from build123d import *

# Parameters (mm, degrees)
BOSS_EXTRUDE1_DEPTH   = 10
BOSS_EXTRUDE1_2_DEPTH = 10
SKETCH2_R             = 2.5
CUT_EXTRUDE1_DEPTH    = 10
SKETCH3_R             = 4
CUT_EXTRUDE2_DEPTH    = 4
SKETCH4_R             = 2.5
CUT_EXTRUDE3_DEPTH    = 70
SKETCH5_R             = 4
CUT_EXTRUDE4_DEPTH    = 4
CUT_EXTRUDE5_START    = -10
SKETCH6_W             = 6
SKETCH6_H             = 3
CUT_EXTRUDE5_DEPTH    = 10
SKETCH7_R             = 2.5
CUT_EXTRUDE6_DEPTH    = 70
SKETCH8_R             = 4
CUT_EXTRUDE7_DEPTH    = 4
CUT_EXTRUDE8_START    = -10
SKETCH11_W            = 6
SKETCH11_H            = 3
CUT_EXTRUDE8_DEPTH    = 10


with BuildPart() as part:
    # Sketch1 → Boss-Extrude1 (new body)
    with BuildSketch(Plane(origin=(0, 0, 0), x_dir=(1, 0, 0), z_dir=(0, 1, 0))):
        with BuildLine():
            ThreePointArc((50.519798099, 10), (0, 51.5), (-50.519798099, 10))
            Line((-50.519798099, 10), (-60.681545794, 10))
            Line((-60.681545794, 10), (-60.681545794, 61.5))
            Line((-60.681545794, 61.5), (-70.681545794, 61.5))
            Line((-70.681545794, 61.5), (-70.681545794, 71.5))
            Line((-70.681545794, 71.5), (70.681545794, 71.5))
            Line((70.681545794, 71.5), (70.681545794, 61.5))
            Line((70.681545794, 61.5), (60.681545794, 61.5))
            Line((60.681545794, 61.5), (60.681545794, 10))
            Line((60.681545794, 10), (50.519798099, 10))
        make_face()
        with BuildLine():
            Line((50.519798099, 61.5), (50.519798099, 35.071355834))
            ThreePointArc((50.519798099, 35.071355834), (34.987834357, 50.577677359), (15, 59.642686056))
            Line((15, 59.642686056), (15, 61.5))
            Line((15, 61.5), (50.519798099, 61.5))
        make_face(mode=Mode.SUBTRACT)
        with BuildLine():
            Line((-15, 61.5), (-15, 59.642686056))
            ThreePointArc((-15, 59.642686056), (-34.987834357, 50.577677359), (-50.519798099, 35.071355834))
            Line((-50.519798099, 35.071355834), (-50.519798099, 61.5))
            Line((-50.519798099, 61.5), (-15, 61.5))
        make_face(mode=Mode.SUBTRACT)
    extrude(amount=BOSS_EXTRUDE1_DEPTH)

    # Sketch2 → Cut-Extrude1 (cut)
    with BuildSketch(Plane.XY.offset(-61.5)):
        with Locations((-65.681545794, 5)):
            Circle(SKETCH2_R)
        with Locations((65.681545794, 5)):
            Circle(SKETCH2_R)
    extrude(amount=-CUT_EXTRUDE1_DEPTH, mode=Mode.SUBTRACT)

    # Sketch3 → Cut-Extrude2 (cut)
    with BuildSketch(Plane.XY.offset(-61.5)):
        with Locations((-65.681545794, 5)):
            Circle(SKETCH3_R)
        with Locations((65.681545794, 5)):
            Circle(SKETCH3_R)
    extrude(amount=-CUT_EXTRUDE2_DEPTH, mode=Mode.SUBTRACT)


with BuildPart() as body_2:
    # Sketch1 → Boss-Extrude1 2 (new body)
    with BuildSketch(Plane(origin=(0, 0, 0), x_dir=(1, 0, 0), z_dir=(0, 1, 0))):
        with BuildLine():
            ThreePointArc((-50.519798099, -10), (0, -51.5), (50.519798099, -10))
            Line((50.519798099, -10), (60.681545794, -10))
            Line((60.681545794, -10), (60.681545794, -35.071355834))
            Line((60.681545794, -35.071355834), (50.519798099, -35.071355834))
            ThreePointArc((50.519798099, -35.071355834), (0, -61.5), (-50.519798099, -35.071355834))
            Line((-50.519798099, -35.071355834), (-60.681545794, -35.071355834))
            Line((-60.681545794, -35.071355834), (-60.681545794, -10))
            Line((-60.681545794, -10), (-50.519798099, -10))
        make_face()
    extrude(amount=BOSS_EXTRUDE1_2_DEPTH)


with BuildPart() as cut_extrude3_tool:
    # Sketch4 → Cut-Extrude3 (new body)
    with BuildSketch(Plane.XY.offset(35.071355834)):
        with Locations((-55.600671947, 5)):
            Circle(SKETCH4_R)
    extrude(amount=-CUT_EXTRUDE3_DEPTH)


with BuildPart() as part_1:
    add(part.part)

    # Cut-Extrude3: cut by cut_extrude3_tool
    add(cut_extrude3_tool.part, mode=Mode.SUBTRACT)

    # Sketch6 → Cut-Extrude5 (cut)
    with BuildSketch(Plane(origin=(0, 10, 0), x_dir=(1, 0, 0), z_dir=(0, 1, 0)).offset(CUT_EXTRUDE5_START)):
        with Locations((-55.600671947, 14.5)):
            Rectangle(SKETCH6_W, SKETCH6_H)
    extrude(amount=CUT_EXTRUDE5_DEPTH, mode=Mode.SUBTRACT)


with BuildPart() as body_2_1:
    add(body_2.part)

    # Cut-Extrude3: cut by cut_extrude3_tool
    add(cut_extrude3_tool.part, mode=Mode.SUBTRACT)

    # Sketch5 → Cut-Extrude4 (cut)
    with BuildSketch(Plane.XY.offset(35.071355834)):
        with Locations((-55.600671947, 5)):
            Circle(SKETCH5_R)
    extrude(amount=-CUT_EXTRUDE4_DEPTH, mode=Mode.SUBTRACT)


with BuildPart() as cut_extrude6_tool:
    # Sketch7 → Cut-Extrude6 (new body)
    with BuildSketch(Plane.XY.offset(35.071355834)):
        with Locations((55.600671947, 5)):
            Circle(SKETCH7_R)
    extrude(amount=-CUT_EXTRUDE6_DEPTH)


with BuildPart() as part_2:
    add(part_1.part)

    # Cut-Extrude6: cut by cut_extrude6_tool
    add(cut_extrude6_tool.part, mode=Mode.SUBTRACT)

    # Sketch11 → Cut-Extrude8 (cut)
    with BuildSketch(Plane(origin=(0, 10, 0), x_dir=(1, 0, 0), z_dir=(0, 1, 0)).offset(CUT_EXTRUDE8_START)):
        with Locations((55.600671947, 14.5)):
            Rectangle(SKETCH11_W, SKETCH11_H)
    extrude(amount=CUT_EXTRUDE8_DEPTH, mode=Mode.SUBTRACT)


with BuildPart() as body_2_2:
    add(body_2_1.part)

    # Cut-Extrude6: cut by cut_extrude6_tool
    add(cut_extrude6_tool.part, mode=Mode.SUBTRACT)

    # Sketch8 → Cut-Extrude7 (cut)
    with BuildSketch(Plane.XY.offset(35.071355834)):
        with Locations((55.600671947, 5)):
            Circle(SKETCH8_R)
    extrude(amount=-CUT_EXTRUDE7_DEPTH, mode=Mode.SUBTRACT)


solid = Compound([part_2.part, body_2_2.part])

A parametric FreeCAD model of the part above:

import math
import FreeCAD as App
import Part
import Sketcher

V = App.Vector

doc = App.newDocument("Part")
body = doc.addObject("PartDesign::Body", "Body")

# Sketch on XZ plane
sketch1 = body.newObject("Sketcher::SketchObject", "Sketch")
sketch1.AttachmentSupport = (doc.getObject("XZ_Plane"), [""])
sketch1.MapMode = "FlatFace"
sketch1.addGeometry(Part.ArcOfCircle(Part.Circle(V(0, 0, 0), V(0, 0, 1), 51.5), math.radians(-169), math.radians(-11)), False)
sketch1.addGeometry(Part.LineSegment(V(50.5, -10, 0), V(60.7, -10, 0)), False)
sketch1.addGeometry(Part.LineSegment(V(60.7, -10, 0), V(60.7, -61.5, 0)), False)
sketch1.addGeometry(Part.LineSegment(V(60.7, -61.5, 0), V(70.7, -61.5, 0)), False)
sketch1.addGeometry(Part.LineSegment(V(70.7, -61.5, 0), V(70.7, -71.5, 0)), False)
sketch1.addGeometry(Part.LineSegment(V(70.7, -71.5, 0), V(-70.7, -71.5, 0)), False)
sketch1.addGeometry(Part.LineSegment(V(-70.7, -71.5, 0), V(-70.7, -61.5, 0)), False)
sketch1.addGeometry(Part.LineSegment(V(-70.7, -61.5, 0), V(-60.7, -61.5, 0)), False)
sketch1.addGeometry(Part.LineSegment(V(-60.7, -61.5, 0), V(-60.7, -10, 0)), False)
sketch1.addGeometry(Part.LineSegment(V(-60.7, -10, 0), V(-50.5, -10, 0)), False)
sketch1.addGeometry(Part.LineSegment(V(-15, -61.5, 0), V(-15, -59.6, 0)), False)
sketch1.addGeometry(Part.ArcOfCircle(Part.Circle(V(0, 0, 0), V(0, 0, 1), 61.5), math.radians(-145), math.radians(-104)), False)
sketch1.addGeometry(Part.LineSegment(V(-50.5, -35.1, 0), V(-50.5, -61.5, 0)), False)
sketch1.addGeometry(Part.LineSegment(V(-50.5, -61.5, 0), V(-15, -61.5, 0)), False)
sketch1.addGeometry(Part.LineSegment(V(50.5, -61.5, 0), V(50.5, -35.1, 0)), False)
sketch1.addGeometry(Part.ArcOfCircle(Part.Circle(V(0, 0, 0), V(0, 0, 1), 61.5), math.radians(-76), math.radians(-35)), False)
sketch1.addGeometry(Part.LineSegment(V(15, -59.6, 0), V(15, -61.5, 0)), False)
sketch1.addGeometry(Part.LineSegment(V(15, -61.5, 0), V(50.5, -61.5, 0)), False)
sketch1.addConstraint(Sketcher.Constraint("Coincident", 0, 2, 1, 1))
sketch1.addConstraint(Sketcher.Constraint("Coincident", 1, 2, 2, 1))
sketch1.addConstraint(Sketcher.Constraint("Coincident", 2, 2, 3, 1))
sketch1.addConstraint(Sketcher.Constraint("Coincident", 3, 2, 4, 1))
sketch1.addConstraint(Sketcher.Constraint("Coincident", 4, 2, 5, 1))
sketch1.addConstraint(Sketcher.Constraint("Coincident", 5, 2, 6, 1))
sketch1.addConstraint(Sketcher.Constraint("Coincident", 6, 2, 7, 1))
sketch1.addConstraint(Sketcher.Constraint("Coincident", 7, 2, 8, 1))
sketch1.addConstraint(Sketcher.Constraint("Coincident", 8, 2, 9, 1))
sketch1.addConstraint(Sketcher.Constraint("Coincident", 9, 2, 0, 1))
sketch1.addConstraint(Sketcher.Constraint("Coincident", 10, 2, 11, 2))
sketch1.addConstraint(Sketcher.Constraint("Coincident", 11, 1, 12, 1))
sketch1.addConstraint(Sketcher.Constraint("Coincident", 12, 2, 13, 1))
sketch1.addConstraint(Sketcher.Constraint("Coincident", 13, 2, 10, 1))
sketch1.addConstraint(Sketcher.Constraint("Coincident", 14, 2, 15, 2))
sketch1.addConstraint(Sketcher.Constraint("Coincident", 15, 1, 16, 1))
sketch1.addConstraint(Sketcher.Constraint("Coincident", 16, 2, 17, 1))
sketch1.addConstraint(Sketcher.Constraint("Coincident", 17, 2, 14, 1))
sketch1.addConstraint(Sketcher.Constraint("Horizontal", 1))
sketch1.addConstraint(Sketcher.Constraint("Vertical", 2))
sketch1.addConstraint(Sketcher.Constraint("Horizontal", 3))
sketch1.addConstraint(Sketcher.Constraint("Vertical", 4))
sketch1.addConstraint(Sketcher.Constraint("Horizontal", 5))
sketch1.addConstraint(Sketcher.Constraint("Vertical", 6))
sketch1.addConstraint(Sketcher.Constraint("Horizontal", 7))
sketch1.addConstraint(Sketcher.Constraint("Vertical", 8))
sketch1.addConstraint(Sketcher.Constraint("Horizontal", 9))
sketch1.addConstraint(Sketcher.Constraint("Vertical", 10))
sketch1.addConstraint(Sketcher.Constraint("Vertical", 12))
sketch1.addConstraint(Sketcher.Constraint("Horizontal", 13))
sketch1.addConstraint(Sketcher.Constraint("Vertical", 14))
sketch1.addConstraint(Sketcher.Constraint("Vertical", 16))
sketch1.addConstraint(Sketcher.Constraint("Horizontal", 17))
sketch1.addConstraint(Sketcher.Constraint("Coincident", 0, 3, -1, 1))
sketch1.addConstraint(Sketcher.Constraint("Coincident", 11, 3, -1, 1))
sketch1.addConstraint(Sketcher.Constraint("Coincident", 15, 3, -1, 1))
sketch1.addConstraint(Sketcher.Constraint("Equal", 11, 15))
sketch1.addConstraint(Sketcher.Constraint("Symmetric", 3, 2, 6, 2, -2))
sketch1.addConstraint(Sketcher.Constraint("Symmetric", 1, 2, 8, 2, -2))
sketch1.addConstraint(Sketcher.Constraint("Symmetric", 13, 2, 16, 2, -2))
sketch1.addConstraint(Sketcher.Constraint("Horizontal", 7, 2, 12, 2))
sketch1.addConstraint(Sketcher.Constraint("Horizontal", 11, 1, 14, 2))
sketch1.addConstraint(Sketcher.Constraint("Vertical", 9, 2, 11, 1))
sketch1.addConstraint(Sketcher.Constraint("Equal", 7, 4))
sketch1.addConstraint(Sketcher.Constraint("Radius", 0, 51.5))
sketch1.addConstraint(Sketcher.Constraint("Radius", 11, 61.5))
sketch1.addConstraint(Sketcher.Constraint("DistanceX", 3, 1, 3, 2, 10.0))
sketch1.addConstraint(Sketcher.Constraint("DistanceY", 2, 2, 2, 1, 51.5))
sketch1.addConstraint(Sketcher.Constraint("DistanceY", 0, 2, -1, 1, 10.0))
sketch1.addConstraint(Sketcher.Constraint("DistanceX", 10, 2, -1, 1, 15.0))
sketch1.addConstraint(Sketcher.Constraint("DistanceX", 5, 2, 5, 1, 141.363092))
pad1 = body.newObject("PartDesign::Pad", "Pad")
pad1.Profile = sketch1
pad1.Length = 10
pad1.Reversed = True

# Sketch on XY plane
sketch2 = body.newObject("Sketcher::SketchObject", "Sketch001")
sketch2.AttachmentSupport = (doc.getObject("XY_Plane"), [""])
sketch2.MapMode = "FlatFace"
sketch2.AttachmentOffset = App.Placement(V(0, 0, -61.5), App.Rotation())
sketch2.addGeometry(Part.Circle(V(-65.7, 5, 0), V(0, 0, 1), 2.5), False)
sketch2.addGeometry(Part.Circle(V(65.7, 5, 0), V(0, 0, 1), 2.5), False)
sketch2.addConstraint(Sketcher.Constraint("Equal", 0, 1))
sketch2.addConstraint(Sketcher.Constraint("Symmetric", 0, 3, 1, 3, -2))
sketch2.addConstraint(Sketcher.Constraint("Diameter", 0, 5.0))
sketch2.addConstraint(Sketcher.Constraint("DistanceY", -1, 1, 0, 3, 5.0))
sketch2.addConstraint(Sketcher.Constraint("DistanceX", 0, 3, 1, 3, 131.363092))
pocket1 = body.newObject("PartDesign::Pocket", "Pocket")
pocket1.Profile = sketch2
pocket1.Length = 10

# Sketch on XY plane
sketch3 = body.newObject("Sketcher::SketchObject", "Sketch002")
sketch3.AttachmentSupport = (doc.getObject("XY_Plane"), [""])
sketch3.MapMode = "FlatFace"
sketch3.AttachmentOffset = App.Placement(V(0, 0, -61.5), App.Rotation())
sketch3.addGeometry(Part.Circle(V(-65.7, 5, 0), V(0, 0, 1), 4), False)
sketch3.addGeometry(Part.Circle(V(65.7, 5, 0), V(0, 0, 1), 4), False)
sketch3.addConstraint(Sketcher.Constraint("Equal", 0, 1))
sketch3.addConstraint(Sketcher.Constraint("Symmetric", 0, 3, 1, 3, -2))
sketch3.addConstraint(Sketcher.Constraint("Diameter", 0, 8.0))
sketch3.addConstraint(Sketcher.Constraint("DistanceY", -1, 1, 0, 3, 5.0))
sketch3.addConstraint(Sketcher.Constraint("DistanceX", 0, 3, 1, 3, 131.363092))
pocket2 = body.newObject("PartDesign::Pocket", "Pocket001")
pocket2.Profile = sketch3
pocket2.Length = 4
body2 = doc.addObject("PartDesign::Body", "Body001")

# Sketch on XZ plane
sketch4 = body2.newObject("Sketcher::SketchObject", "Sketch003")
sketch4.AttachmentSupport = (doc.getObject("XZ_Plane001"), [""])
sketch4.MapMode = "FlatFace"
sketch4.addGeometry(Part.ArcOfCircle(Part.Circle(V(0, 0, 0), V(0, 0, 1), 52), math.radians(11), math.radians(169)), False)
sketch4.addGeometry(Part.LineSegment(V(-51, 10, 0), V(-61, 10, 0)), False)
sketch4.addGeometry(Part.LineSegment(V(-61, 10, 0), V(-61, 35, 0)), False)
sketch4.addGeometry(Part.LineSegment(V(-61, 35, 0), V(-51, 35, 0)), False)
sketch4.addGeometry(Part.ArcOfCircle(Part.Circle(V(0, 0, 0), V(0, 0, 1), 62), math.radians(35), math.radians(145)), False)
sketch4.addGeometry(Part.LineSegment(V(51, 35, 0), V(61, 35, 0)), False)
sketch4.addGeometry(Part.LineSegment(V(61, 35, 0), V(61, 10, 0)), False)
sketch4.addGeometry(Part.LineSegment(V(61, 10, 0), V(51, 10, 0)), False)
sketch4.addConstraint(Sketcher.Constraint("Coincident", 0, 2, 1, 1))
sketch4.addConstraint(Sketcher.Constraint("Coincident", 1, 2, 2, 1))
sketch4.addConstraint(Sketcher.Constraint("Coincident", 2, 2, 3, 1))
sketch4.addConstraint(Sketcher.Constraint("Coincident", 3, 2, 4, 2))
sketch4.addConstraint(Sketcher.Constraint("Coincident", 4, 1, 5, 1))
sketch4.addConstraint(Sketcher.Constraint("Coincident", 5, 2, 6, 1))
sketch4.addConstraint(Sketcher.Constraint("Coincident", 6, 2, 7, 1))
sketch4.addConstraint(Sketcher.Constraint("Coincident", 7, 2, 0, 1))
sketch4.addConstraint(Sketcher.Constraint("Horizontal", 1))
sketch4.addConstraint(Sketcher.Constraint("Vertical", 2))
sketch4.addConstraint(Sketcher.Constraint("Horizontal", 3))
sketch4.addConstraint(Sketcher.Constraint("Horizontal", 5))
sketch4.addConstraint(Sketcher.Constraint("Vertical", 6))
sketch4.addConstraint(Sketcher.Constraint("Horizontal", 7))
sketch4.addConstraint(Sketcher.Constraint("Coincident", 0, 3, -1, 1))
sketch4.addConstraint(Sketcher.Constraint("Coincident", 4, 3, -1, 1))
sketch4.addConstraint(Sketcher.Constraint("Symmetric", 2, 2, 5, 2, -2))
sketch4.addConstraint(Sketcher.Constraint("Horizontal", 1, 2, 6, 2))
sketch4.addConstraint(Sketcher.Constraint("Vertical", 0, 2, 3, 2))
sketch4.addConstraint(Sketcher.Constraint("Radius", 0, 51.5))
sketch4.addConstraint(Sketcher.Constraint("Radius", 4, 61.5))
sketch4.addConstraint(Sketcher.Constraint("DistanceY", -1, 1, 0, 2, 10.0))
sketch4.addConstraint(Sketcher.Constraint("DistanceX", 1, 2, 1, 1, 10.161748))
pad2 = body2.newObject("PartDesign::Pad", "Pad001")
pad2.Profile = sketch4
pad2.Length = 10
pad2.Reversed = True
body3 = doc.addObject("PartDesign::Body", "Body002")

# Sketch on XY plane
sketch5 = body3.newObject("Sketcher::SketchObject", "Sketch004")
sketch5.AttachmentSupport = (doc.getObject("XY_Plane002"), [""])
sketch5.MapMode = "FlatFace"
sketch5.AttachmentOffset = App.Placement(V(0, 0, 35.071356), App.Rotation())
sketch5.addGeometry(Part.Circle(V(-55.6, 5, 0), V(0, 0, 1), 2.5), False)
sketch5.addConstraint(Sketcher.Constraint("Diameter", 0, 5.0))
sketch5.addConstraint(Sketcher.Constraint("DistanceY", -1, 1, 0, 3, 5.0))
sketch5.addConstraint(Sketcher.Constraint("DistanceX", 0, 3, -1, 1, 55.600672))
pad3 = body3.newObject("PartDesign::Pad", "Pad002")
pad3.Profile = sketch5
pad3.Length = 70
pad3.Reversed = True
doc.recompute()

body4 = doc.addObject("PartDesign::Body", "Body003")
body4.BaseFeature = body3
boolean = body.newObject("PartDesign::Boolean", "Boolean")
boolean.Type = "Cut"
boolean.addObjects([body4])
doc.recompute()

# Sketch on XZ plane
sketch6 = body.newObject("Sketcher::SketchObject", "Sketch005")
sketch6.AttachmentSupport = (doc.getObject("XZ_Plane"), [""])
sketch6.MapMode = "FlatFace"
sketch6.addGeometry(Part.LineSegment(V(-58.6, -16, 0), V(-58.6, -13, 0)), False)
sketch6.addGeometry(Part.LineSegment(V(-58.6, -13, 0), V(-52.6, -13, 0)), False)
sketch6.addGeometry(Part.LineSegment(V(-52.6, -13, 0), V(-52.6, -16, 0)), False)
sketch6.addGeometry(Part.LineSegment(V(-52.6, -16, 0), V(-58.6, -16, 0)), False)
sketch6.addConstraint(Sketcher.Constraint("Coincident", 0, 2, 1, 1))
sketch6.addConstraint(Sketcher.Constraint("Coincident", 1, 2, 2, 1))
sketch6.addConstraint(Sketcher.Constraint("Coincident", 2, 2, 3, 1))
sketch6.addConstraint(Sketcher.Constraint("Coincident", 3, 2, 0, 1))
sketch6.addConstraint(Sketcher.Constraint("Vertical", 0))
sketch6.addConstraint(Sketcher.Constraint("Horizontal", 1))
sketch6.addConstraint(Sketcher.Constraint("Vertical", 2))
sketch6.addConstraint(Sketcher.Constraint("Horizontal", 3))
sketch6.addConstraint(Sketcher.Constraint("DistanceX", 1, 1, 1, 2, 6.0))
sketch6.addConstraint(Sketcher.Constraint("DistanceY", 0, 1, 0, 2, 3.0))
sketch6.addConstraint(Sketcher.Constraint("DistanceY", 0, 2, -1, 1, 13.0))
sketch6.addConstraint(Sketcher.Constraint("DistanceX", 0, 2, -1, 1, 58.600672))
pocket3 = body.newObject("PartDesign::Pocket", "Pocket002")
pocket3.Profile = sketch6
pocket3.Length = 10
doc.recompute()

boolean2 = body2.newObject("PartDesign::Boolean", "Boolean001")
boolean2.Type = "Cut"
boolean2.addObjects([body3])

# Sketch on XY plane
sketch7 = body2.newObject("Sketcher::SketchObject", "Sketch006")
sketch7.AttachmentSupport = (doc.getObject("XY_Plane001"), [""])
sketch7.MapMode = "FlatFace"
sketch7.AttachmentOffset = App.Placement(V(0, 0, 35.071356), App.Rotation())
sketch7.addGeometry(Part.Circle(V(-55.6, 5, 0), V(0, 0, 1), 4), False)
sketch7.addConstraint(Sketcher.Constraint("Diameter", 0, 8.0))
sketch7.addConstraint(Sketcher.Constraint("DistanceY", -1, 1, 0, 3, 5.0))
sketch7.addConstraint(Sketcher.Constraint("DistanceX", 0, 3, -1, 1, 55.600672))
pocket4 = body2.newObject("PartDesign::Pocket", "Pocket003")
pocket4.Profile = sketch7
pocket4.Length = 4
body5 = doc.addObject("PartDesign::Body", "Body004")

# Sketch on XY plane
sketch8 = body5.newObject("Sketcher::SketchObject", "Sketch007")
sketch8.AttachmentSupport = (doc.getObject("XY_Plane004"), [""])
sketch8.MapMode = "FlatFace"
sketch8.AttachmentOffset = App.Placement(V(0, 0, 35.071356), App.Rotation())
sketch8.addGeometry(Part.Circle(V(55.6, 5, 0), V(0, 0, 1), 2.5), False)
sketch8.addConstraint(Sketcher.Constraint("Diameter", 0, 5.0))
sketch8.addConstraint(Sketcher.Constraint("DistanceY", -1, 1, 0, 3, 5.0))
sketch8.addConstraint(Sketcher.Constraint("DistanceX", -1, 1, 0, 3, 55.600672))
pad4 = body5.newObject("PartDesign::Pad", "Pad003")
pad4.Profile = sketch8
pad4.Length = 70
pad4.Reversed = True
doc.recompute()

body6 = doc.addObject("PartDesign::Body", "Body005")
body6.BaseFeature = body5
boolean3 = body.newObject("PartDesign::Boolean", "Boolean002")
boolean3.Type = "Cut"
boolean3.addObjects([body6])
doc.recompute()

# Sketch on XZ plane
sketch9 = body.newObject("Sketcher::SketchObject", "Sketch008")
sketch9.AttachmentSupport = (doc.getObject("XZ_Plane"), [""])
sketch9.MapMode = "FlatFace"
sketch9.addGeometry(Part.LineSegment(V(52.6, -16, 0), V(52.6, -13, 0)), False)
sketch9.addGeometry(Part.LineSegment(V(52.6, -13, 0), V(58.6, -13, 0)), False)
sketch9.addGeometry(Part.LineSegment(V(58.6, -13, 0), V(58.6, -16, 0)), False)
sketch9.addGeometry(Part.LineSegment(V(58.6, -16, 0), V(52.6, -16, 0)), False)
sketch9.addConstraint(Sketcher.Constraint("Coincident", 0, 2, 1, 1))
sketch9.addConstraint(Sketcher.Constraint("Coincident", 1, 2, 2, 1))
sketch9.addConstraint(Sketcher.Constraint("Coincident", 2, 2, 3, 1))
sketch9.addConstraint(Sketcher.Constraint("Coincident", 3, 2, 0, 1))
sketch9.addConstraint(Sketcher.Constraint("Vertical", 0))
sketch9.addConstraint(Sketcher.Constraint("Horizontal", 1))
sketch9.addConstraint(Sketcher.Constraint("Vertical", 2))
sketch9.addConstraint(Sketcher.Constraint("Horizontal", 3))
sketch9.addConstraint(Sketcher.Constraint("DistanceX", 1, 1, 1, 2, 6.0))
sketch9.addConstraint(Sketcher.Constraint("DistanceY", 0, 1, 0, 2, 3.0))
sketch9.addConstraint(Sketcher.Constraint("DistanceY", 0, 2, -1, 1, 13.0))
sketch9.addConstraint(Sketcher.Constraint("DistanceX", -1, 1, 0, 2, 52.600672))
pocket5 = body.newObject("PartDesign::Pocket", "Pocket004")
pocket5.Profile = sketch9
pocket5.Length = 10
doc.recompute()

boolean4 = body2.newObject("PartDesign::Boolean", "Boolean003")
boolean4.Type = "Cut"
boolean4.addObjects([body5])

# Sketch on XY plane
sketch10 = body2.newObject("Sketcher::SketchObject", "Sketch009")
sketch10.AttachmentSupport = (doc.getObject("XY_Plane001"), [""])
sketch10.MapMode = "FlatFace"
sketch10.AttachmentOffset = App.Placement(V(0, 0, 35.071356), App.Rotation())
sketch10.addGeometry(Part.Circle(V(55.6, 5, 0), V(0, 0, 1), 4), False)
sketch10.addConstraint(Sketcher.Constraint("Diameter", 0, 8.0))
sketch10.addConstraint(Sketcher.Constraint("DistanceY", -1, 1, 0, 3, 5.0))
sketch10.addConstraint(Sketcher.Constraint("DistanceX", -1, 1, 0, 3, 55.600672))
pocket6 = body2.newObject("PartDesign::Pocket", "Pocket005")
pocket6.Profile = sketch10
pocket6.Length = 4

doc.recompute()
